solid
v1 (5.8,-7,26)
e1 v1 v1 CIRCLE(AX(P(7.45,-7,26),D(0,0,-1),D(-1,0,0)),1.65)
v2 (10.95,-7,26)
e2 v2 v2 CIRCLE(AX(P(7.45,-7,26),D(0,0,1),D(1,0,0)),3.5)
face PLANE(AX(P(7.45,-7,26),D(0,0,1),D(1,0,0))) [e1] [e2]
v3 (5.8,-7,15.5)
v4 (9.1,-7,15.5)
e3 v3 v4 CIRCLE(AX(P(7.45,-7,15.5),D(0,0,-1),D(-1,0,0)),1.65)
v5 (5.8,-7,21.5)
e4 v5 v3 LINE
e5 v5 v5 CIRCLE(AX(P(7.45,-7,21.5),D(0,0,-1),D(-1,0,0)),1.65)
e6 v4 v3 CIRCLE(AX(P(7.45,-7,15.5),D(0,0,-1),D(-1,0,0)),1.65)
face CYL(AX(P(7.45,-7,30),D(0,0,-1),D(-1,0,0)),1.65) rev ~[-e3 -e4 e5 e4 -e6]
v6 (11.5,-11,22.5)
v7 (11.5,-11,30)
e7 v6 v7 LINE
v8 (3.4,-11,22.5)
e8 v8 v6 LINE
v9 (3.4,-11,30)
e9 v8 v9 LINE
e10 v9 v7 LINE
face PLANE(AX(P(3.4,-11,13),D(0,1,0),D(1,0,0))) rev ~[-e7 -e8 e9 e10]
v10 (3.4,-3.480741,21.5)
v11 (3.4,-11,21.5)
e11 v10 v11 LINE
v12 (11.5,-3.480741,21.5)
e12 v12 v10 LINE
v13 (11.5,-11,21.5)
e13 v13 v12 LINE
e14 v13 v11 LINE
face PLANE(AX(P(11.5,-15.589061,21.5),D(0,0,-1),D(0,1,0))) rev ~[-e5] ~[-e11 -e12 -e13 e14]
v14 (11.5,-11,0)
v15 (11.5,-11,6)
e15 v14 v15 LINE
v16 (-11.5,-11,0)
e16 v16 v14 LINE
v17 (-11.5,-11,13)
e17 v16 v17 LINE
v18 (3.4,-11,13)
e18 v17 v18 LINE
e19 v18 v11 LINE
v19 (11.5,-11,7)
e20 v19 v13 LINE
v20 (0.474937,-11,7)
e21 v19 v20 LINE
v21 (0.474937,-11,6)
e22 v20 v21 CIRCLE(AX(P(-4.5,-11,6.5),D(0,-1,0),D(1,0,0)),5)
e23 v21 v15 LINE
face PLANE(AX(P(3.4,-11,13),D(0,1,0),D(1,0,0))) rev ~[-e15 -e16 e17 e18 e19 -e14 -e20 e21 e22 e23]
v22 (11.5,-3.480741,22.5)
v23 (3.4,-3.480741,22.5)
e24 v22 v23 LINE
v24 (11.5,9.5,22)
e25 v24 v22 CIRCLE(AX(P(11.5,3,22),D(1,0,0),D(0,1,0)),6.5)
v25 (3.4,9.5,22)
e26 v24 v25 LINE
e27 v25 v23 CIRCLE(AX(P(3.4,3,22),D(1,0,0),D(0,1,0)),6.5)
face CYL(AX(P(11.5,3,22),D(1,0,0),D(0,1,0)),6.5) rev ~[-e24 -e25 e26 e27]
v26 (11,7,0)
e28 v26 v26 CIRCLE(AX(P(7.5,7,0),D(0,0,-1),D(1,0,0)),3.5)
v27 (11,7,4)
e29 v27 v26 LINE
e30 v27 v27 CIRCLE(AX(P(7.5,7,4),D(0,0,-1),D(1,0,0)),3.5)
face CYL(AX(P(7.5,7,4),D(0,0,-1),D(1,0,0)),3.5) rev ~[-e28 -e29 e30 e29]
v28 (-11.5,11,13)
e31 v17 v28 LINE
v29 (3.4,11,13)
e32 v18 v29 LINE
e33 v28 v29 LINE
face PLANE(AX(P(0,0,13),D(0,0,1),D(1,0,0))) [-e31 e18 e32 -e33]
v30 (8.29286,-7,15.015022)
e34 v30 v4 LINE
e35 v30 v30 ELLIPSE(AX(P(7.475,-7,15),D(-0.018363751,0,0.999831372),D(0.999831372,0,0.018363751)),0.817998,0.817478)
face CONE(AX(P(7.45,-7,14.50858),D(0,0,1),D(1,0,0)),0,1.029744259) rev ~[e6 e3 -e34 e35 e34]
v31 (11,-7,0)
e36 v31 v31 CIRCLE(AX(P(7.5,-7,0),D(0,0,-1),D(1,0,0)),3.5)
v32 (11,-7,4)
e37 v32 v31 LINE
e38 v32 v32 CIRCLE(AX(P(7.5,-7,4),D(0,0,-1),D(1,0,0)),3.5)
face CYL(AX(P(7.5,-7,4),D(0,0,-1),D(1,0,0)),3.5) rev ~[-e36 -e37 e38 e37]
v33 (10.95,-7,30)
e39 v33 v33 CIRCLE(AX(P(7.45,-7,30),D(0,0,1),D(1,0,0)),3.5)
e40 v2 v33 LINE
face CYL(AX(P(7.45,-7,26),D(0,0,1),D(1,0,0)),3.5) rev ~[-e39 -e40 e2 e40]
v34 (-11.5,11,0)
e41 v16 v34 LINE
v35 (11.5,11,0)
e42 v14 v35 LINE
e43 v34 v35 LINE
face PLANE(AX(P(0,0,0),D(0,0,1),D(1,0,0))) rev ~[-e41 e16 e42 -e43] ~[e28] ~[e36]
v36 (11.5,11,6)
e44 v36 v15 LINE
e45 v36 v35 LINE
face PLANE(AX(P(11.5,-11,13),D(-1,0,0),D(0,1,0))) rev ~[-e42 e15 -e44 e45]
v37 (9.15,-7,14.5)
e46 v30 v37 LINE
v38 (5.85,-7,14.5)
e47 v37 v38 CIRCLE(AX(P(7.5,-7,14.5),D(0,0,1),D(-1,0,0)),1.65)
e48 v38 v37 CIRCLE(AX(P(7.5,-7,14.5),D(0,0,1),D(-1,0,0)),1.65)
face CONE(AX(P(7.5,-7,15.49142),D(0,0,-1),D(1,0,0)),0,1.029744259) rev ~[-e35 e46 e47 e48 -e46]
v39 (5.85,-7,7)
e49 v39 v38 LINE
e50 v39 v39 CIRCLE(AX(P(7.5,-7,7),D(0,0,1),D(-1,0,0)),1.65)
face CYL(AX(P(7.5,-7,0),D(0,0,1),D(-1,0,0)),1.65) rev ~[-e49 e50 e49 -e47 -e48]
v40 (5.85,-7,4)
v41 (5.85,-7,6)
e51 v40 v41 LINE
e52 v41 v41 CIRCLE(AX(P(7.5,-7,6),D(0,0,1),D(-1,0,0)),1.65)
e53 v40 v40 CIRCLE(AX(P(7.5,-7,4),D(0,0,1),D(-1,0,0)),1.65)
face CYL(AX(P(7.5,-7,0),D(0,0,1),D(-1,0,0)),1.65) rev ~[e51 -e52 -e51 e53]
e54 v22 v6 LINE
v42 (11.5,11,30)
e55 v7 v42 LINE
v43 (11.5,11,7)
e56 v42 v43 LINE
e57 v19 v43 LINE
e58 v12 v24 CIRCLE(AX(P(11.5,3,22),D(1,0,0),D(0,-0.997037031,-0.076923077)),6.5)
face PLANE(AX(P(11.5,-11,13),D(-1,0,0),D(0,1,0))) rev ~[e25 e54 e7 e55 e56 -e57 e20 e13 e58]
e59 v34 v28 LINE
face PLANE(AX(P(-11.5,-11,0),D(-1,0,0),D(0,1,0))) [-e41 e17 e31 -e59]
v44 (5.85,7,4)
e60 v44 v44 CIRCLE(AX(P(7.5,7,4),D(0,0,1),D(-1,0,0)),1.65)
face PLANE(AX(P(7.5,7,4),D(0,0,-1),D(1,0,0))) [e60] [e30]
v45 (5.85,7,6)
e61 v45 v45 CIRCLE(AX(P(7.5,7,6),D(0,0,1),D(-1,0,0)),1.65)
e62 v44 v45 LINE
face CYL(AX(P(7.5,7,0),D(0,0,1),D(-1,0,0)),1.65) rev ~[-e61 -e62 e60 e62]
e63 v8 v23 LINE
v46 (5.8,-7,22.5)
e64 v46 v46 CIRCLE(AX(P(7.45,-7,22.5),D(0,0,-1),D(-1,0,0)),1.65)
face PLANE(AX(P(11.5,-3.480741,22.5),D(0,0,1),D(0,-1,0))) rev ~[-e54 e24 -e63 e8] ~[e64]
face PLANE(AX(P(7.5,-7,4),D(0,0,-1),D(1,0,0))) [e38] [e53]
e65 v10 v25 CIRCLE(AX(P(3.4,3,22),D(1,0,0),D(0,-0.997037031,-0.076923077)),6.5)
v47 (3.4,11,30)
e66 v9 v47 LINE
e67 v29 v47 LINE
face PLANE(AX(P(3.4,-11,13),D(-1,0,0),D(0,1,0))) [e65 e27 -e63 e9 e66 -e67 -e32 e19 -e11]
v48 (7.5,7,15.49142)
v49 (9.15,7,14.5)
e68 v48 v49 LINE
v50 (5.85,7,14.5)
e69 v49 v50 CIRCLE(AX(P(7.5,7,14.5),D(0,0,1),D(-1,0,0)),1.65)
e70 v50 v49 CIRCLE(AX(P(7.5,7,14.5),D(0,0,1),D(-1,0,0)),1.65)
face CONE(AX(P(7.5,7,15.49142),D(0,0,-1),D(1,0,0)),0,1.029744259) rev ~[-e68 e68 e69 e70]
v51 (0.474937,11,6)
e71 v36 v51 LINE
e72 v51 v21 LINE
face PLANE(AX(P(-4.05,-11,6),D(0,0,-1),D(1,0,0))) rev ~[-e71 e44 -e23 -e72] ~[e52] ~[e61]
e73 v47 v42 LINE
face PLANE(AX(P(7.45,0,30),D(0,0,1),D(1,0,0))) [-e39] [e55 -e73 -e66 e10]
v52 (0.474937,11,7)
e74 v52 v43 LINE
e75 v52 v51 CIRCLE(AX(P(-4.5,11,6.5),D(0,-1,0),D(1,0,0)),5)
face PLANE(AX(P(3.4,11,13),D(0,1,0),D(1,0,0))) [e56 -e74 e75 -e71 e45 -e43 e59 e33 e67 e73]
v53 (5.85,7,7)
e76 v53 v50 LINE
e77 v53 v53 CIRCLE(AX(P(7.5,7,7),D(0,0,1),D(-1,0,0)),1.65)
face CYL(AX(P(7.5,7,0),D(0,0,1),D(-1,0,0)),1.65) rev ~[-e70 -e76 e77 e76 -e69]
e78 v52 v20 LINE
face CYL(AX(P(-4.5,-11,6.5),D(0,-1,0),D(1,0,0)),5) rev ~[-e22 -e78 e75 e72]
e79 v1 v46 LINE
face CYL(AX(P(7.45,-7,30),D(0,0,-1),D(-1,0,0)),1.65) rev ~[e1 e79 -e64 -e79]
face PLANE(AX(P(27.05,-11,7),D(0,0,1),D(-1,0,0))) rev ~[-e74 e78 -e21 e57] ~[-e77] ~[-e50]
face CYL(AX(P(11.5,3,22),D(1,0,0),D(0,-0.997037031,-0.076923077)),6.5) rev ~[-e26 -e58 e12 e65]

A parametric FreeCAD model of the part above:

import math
import FreeCAD as App
import Part
import Sketcher

V = App.Vector
Q = App.Units.Quantity

doc = App.newDocument("Part")
params = doc.addObject("Spreadsheet::Sheet", "Params")
for row, (alias, value) in enumerate([
    ("sketch1_width", "23 mm"),
    ("sketch1_height", "22 mm"),
    ("pad1_length", "13 mm"),
    ("sketch2_height", "22 mm"),
    ("sketch2_width", "8.1 mm"),
    ("pad2_length", "17 mm"),
    ("sketch3_diameter", "10 mm"),
    ("pocket1_length", "30 mm"),
    ("sketch4_radius", "6.5 mm"),
    ("sketch4_height", "1 mm"),
    ("pocket2_length", "25 mm"),
    ("sketch5_height", "1 mm"),
    ("sketch5_width", "31.1 mm"),
    ("pocket3_length", "45 mm"),
    ("sketch6_radius", "6.5 mm"),
    ("sketch6_height", "1 mm"),
    ("pocket4_length", "40 mm"),
    ("sketch7_diameter", "3.3 mm"),
    ("hole_diameter", "3.3 mm"),
    ("hole_depth", "14.5 mm"),
    ("hole_cbore_diameter", "7 mm"),
    ("hole_cbore_depth", "4 mm"),
    ("pocket5_length", "3.05 mm"),
    ("sketch9_diameter", "3.3 mm"),
    ("hole2_diameter", "3.3 mm"),
    ("hole2_depth", "14.5 mm"),
    ("hole2_cbore_diameter", "7 mm"),
    ("hole2_cbore_depth", "4 mm"),
    ("pocket6_length", "3.05 mm"),
], start=1):
    params.set(f"A{row}", alias)
    params.set(f"B{row}", "=" + value)
    params.setAlias(f"B{row}", alias)

body = doc.addObject("PartDesign::Body", "Body")

# Sketch on XY plane
sketch1 = body.newObject("Sketcher::SketchObject", "Sketch")
sketch1.AttachmentSupport = (doc.getObject("XY_Plane"), [""])
sketch1.MapMode = "FlatFace"
sketch1.addGeometry(Part.LineSegment(V(-11.5, 11, 0), V(-11.5, -11, 0)), False)
sketch1.addGeometry(Part.LineSegment(V(-11.5, -11, 0), V(11.5, -11, 0)), False)
sketch1.addGeometry(Part.LineSegment(V(11.5, -11, 0), V(11.5, 11, 0)), False)
sketch1.addGeometry(Part.LineSegment(V(11.5, 11, 0), V(-11.5, 11, 0)), False)
sketch1.addConstraint(Sketcher.Constraint("Coincident", 0, 2, 1, 1))
sketch1.addConstraint(Sketcher.Constraint("Coincident", 1, 2, 2, 1))
sketch1.addConstraint(Sketcher.Constraint("Coincident", 2, 2, 3, 1))
sketch1.addConstraint(Sketcher.Constraint("Coincident", 3, 2, 0, 1))
sketch1.addConstraint(Sketcher.Constraint("Vertical", 0))
sketch1.addConstraint(Sketcher.Constraint("Horizontal", 1))
sketch1.addConstraint(Sketcher.Constraint("Vertical", 2))
sketch1.addConstraint(Sketcher.Constraint("Horizontal", 3))
sketch1.addConstraint(Sketcher.Constraint("Symmetric", 0, 2, 2, 2, -1, 1))
sketch1.addConstraint(Sketcher.Constraint("DistanceX", 1, 1, 1, 2, Q("23 mm")))
sketch1.addConstraint(Sketcher.Constraint("DistanceY", 0, 2, 0, 1, Q("22 mm")))
sketch1.setExpression("Constraints[9]", "Params.sketch1_width")
sketch1.setExpression("Constraints[10]", "Params.sketch1_height")
pad1 = body.newObject("PartDesign::Pad", "Pad")
pad1.Profile = sketch1
pad1.setExpression("Length", "Params.pad1_length")

# Sketch on XY plane
sketch2 = body.newObject("Sketcher::SketchObject", "Sketch001")
sketch2.AttachmentSupport = (doc.getObject("XY_Plane"), [""])
sketch2.MapMode = "FlatFace"
sketch2.AttachmentOffset = App.Placement(V(0, 0, 13), App.Rotation())
sketch2.addGeometry(Part.LineSegment(V(3.4, 11, 0), V(3.4, -11, 0)), False)
sketch2.addGeometry(Part.LineSegment(V(3.4, -11, 0), V(11.5, -11, 0)), False)
sketch2.addGeometry(Part.LineSegment(V(11.5, -11, 0), V(11.5, 11, 0)), False)
sketch2.addGeometry(Part.LineSegment(V(11.5, 11, 0), V(3.4, 11, 0)), False)
sketch2.addConstraint(Sketcher.Constraint("Coincident", 0, 2, 1, 1))
sketch2.addConstraint(Sketcher.Constraint("Coincident", 1, 2, 2, 1))
sketch2.addConstraint(Sketcher.Constraint("Coincident", 2, 2, 3, 1))
sketch2.addConstraint(Sketcher.Constraint("Coincident", 3, 2, 0, 1))
sketch2.addConstraint(Sketcher.Constraint("Vertical", 0))
sketch2.addConstraint(Sketcher.Constraint("Horizontal", 1))
sketch2.addConstraint(Sketcher.Constraint("Vertical", 2))
sketch2.addConstraint(Sketcher.Constraint("Horizontal", 3))
sketch2.addConstraint(Sketcher.Constraint("DistanceY", 0, 2, 0, 1, Q("22 mm")))
sketch2.addConstraint(Sketcher.Constraint("DistanceX", 1, 1, 1, 2, Q("8.1 mm")))
sketch2.addConstraint(Sketcher.Constraint("DistanceY", 0, 2, -1, 1, Q("11 mm")))
sketch2.addConstraint(Sketcher.Constraint("DistanceX", -1, 1, 0, 2, Q("3.4 mm")))
sketch2.setExpression("Constraints[8]", "Params.sketch2_height")
sketch2.setExpression("Constraints[9]", "Params.sketch2_width")
pad2 = body.newObject("PartDesign::Pad", "Pad001")
pad2.Profile = sketch2
pad2.setExpression("Length", "Params.pad2_length")

# Sketch on XZ plane
sketch3 = body.newObject("Sketcher::SketchObject", "Sketch002")
sketch3.AttachmentSupport = (doc.getObject("XZ_Plane"), [""])
sketch3.MapMode = "FlatFace"
sketch3.AttachmentOffset = App.Placement(V(0, 0, 11), App.Rotation())
sketch3.addGeometry(Part.Circle(V(-4.5, 6.5, 0), V(0, 0, 1), 5), False)
sketch3.addConstraint(Sketcher.Constraint("Diameter", 0, Q("10 mm")))
sketch3.addConstraint(Sketcher.Constraint("DistanceX", 0, 3, -1, 1, Q("4.5 mm")))
sketch3.addConstraint(Sketcher.Constraint("DistanceY", -1, 1, 0, 3, Q("6.5 mm")))
sketch3.setExpression("Constraints[0]", "Params.sketch3_diameter")
pocket1 = body.newObject("PartDesign::Pocket", "Pocket")
pocket1.Profile = sketch3
pocket1.setExpression("Length", "Params.pocket1_length")

# Sketch on YZ plane
sketch4 = body.newObject("Sketcher::SketchObject", "Sketch003")
sketch4.AttachmentSupport = (doc.getObject("YZ_Plane"), [""])
sketch4.MapMode = "FlatFace"
sketch4.AttachmentOffset = App.Placement(V(0, 0, 11.5), App.Rotation())
sketch4.addGeometry(Part.ArcOfCircle(Part.Circle(V(3, 22, 0), V(0, 0, 1), 6.5), math.radians(-175.588274), math.radians(0)), False)
sketch4.addGeometry(Part.ArcOfCircle(Part.Circle(V(3, 22, 0), V(0, 0, 1), 6.5), math.radians(0), math.radians(175.588274)), False)
sketch4.addGeometry(Part.LineSegment(V(-3.480741, 22.5, 0), V(-15.589061, 22.5, 0)), False)
sketch4.addGeometry(Part.LineSegment(V(-15.589061, 22.5, 0), V(-15.589061, 21.5, 0)), False)
sketch4.addGeometry(Part.LineSegment(V(-15.589061, 21.5, 0), V(-3.480741, 21.5, 0)), False)
sketch4.addConstraint(Sketcher.Constraint("Tangent", 0, 2, 1, 1))
sketch4.addConstraint(Sketcher.Constraint("Coincident", 1, 2, 2, 1))
sketch4.addConstraint(Sketcher.Constraint("Coincident", 2, 2, 3, 1))
sketch4.addConstraint(Sketcher.Constraint("Coincident", 3, 2, 4, 1))
sketch4.addConstraint(Sketcher.Constraint("Coincident", 4, 2, 0, 1))
sketch4.addConstraint(Sketcher.Constraint("Horizontal", 2))
sketch4.addConstraint(Sketcher.Constraint("Vertical", 3))
sketch4.addConstraint(Sketcher.Constraint("Horizontal", 4))
sketch4.addConstraint(Sketcher.Constraint("Equal", 0, 1))
sketch4.addConstraint(Sketcher.Constraint("Horizontal", 1, 3, 0, 2))
sketch4.addConstraint(Sketcher.Constraint("Vertical", 1, 2, 4, 2))
sketch4.addConstraint(Sketcher.Constraint("Radius", 0, Q("6.5 mm")))
sketch4.addConstraint(Sketcher.Constraint("DistanceY", 3, 2, 3, 1, Q("1 mm")))
sketch4.addConstraint(Sketcher.Constraint("DistanceX", -1, 1, 0, 3, Q("3 mm")))
sketch4.addConstraint(Sketcher.Constraint("DistanceY", -1, 1, 0, 3, Q("22 mm")))
sketch4.addConstraint(Sketcher.Constraint("DistanceX", 2, 2, 2, 1, Q("12.10832 mm")))
sketch4.setExpression("Constraints[11]", "Params.sketch4_radius")
sketch4.setExpression("Constraints[12]", "Params.sketch4_height")
pocket2 = body.newObject("PartDesign::Pocket", "Pocket001")
pocket2.Profile = sketch4
pocket2.setExpression("Length", "Params.pocket2_length")

# Sketch on XZ plane
sketch5 = body.newObject("Sketcher::SketchObject", "Sketch004")
sketch5.AttachmentSupport = (doc.getObject("XZ_Plane"), [""])
sketch5.MapMode = "FlatFace"
sketch5.AttachmentOffset = App.Placement(V(0, 0, 11), App.Rotation())
sketch5.addGeometry(Part.LineSegment(V(27.05, 7, 0), V(-4.05, 7, 0)), False)
sketch5.addGeometry(Part.LineSegment(V(-4.05, 7, 0), V(-4.05, 6, 0)), False)
sketch5.addGeometry(Part.LineSegment(V(-4.05, 6, 0), V(27.05, 6, 0)), False)
sketch5.addGeometry(Part.LineSegment(V(27.05, 6, 0), V(27.05, 7, 0)), False)
sketch5.addConstraint(Sketcher.Constraint("Coincident", 0, 2, 1, 1))
sketch5.addConstraint(Sketcher.Constraint("Coincident", 1, 2, 2, 1))
sketch5.addConstraint(Sketcher.Constraint("Coincident", 2, 2, 3, 1))
sketch5.addConstraint(Sketcher.Constraint("Coincident", 3, 2, 0, 1))
sketch5.addConstraint(Sketcher.Constraint("Horizontal", 0))
sketch5.addConstraint(Sketcher.Constraint("Vertical", 1))
sketch5.addConstraint(Sketcher.Constraint("Horizontal", 2))
sketch5.addConstraint(Sketcher.Constraint("Vertical", 3))
sketch5.addConstraint(Sketcher.Constraint("DistanceY", 1, 2, 1, 1, Q("1 mm")))
sketch5.addConstraint(Sketcher.Constraint("DistanceX", 0, 2, 0, 1, Q("31.1 mm")))
sketch5.addConstraint(Sketcher.Constraint("DistanceY", -1, 1, 0, 2, Q("7 mm")))
sketch5.addConstraint(Sketcher.Constraint("DistanceX", 0, 2, -1, 1, Q("4.05 mm")))
sketch5.setExpression("Constraints[8]", "Params.sketch5_height")
sketch5.setExpression("Constraints[9]", "Params.sketch5_width")
pocket3 = body.newObject("PartDesign::Pocket", "Pocket002")
pocket3.Profile = sketch5
pocket3.setExpression("Length", "Params.pocket3_length")

# Sketch on YZ plane
sketch6 = body.newObject("Sketcher::SketchObject", "Sketch005")
sketch6.AttachmentSupport = (doc.getObject("YZ_Plane"), [""])
sketch6.MapMode = "FlatFace"
sketch6.AttachmentOffset = App.Placement(V(0, 0, 11.5), App.Rotation())
sketch6.addGeometry(Part.ArcOfCircle(Part.Circle(V(3, 22, 0), V(0, 0, 1), 6.5), math.radians(-175.588274), math.radians(0)), False)
sketch6.addGeometry(Part.ArcOfCircle(Part.Circle(V(3, 22, 0), V(0, 0, 1), 6.5), math.radians(0), math.radians(175.588274)), False)
sketch6.addGeometry(Part.LineSegment(V(-3.480741, 22.5, 0), V(-15.589061, 22.5, 0)), False)
sketch6.addGeometry(Part.LineSegment(V(-15.589061, 22.5, 0), V(-15.589061, 21.5, 0)), False)
sketch6.addGeometry(Part.LineSegment(V(-15.589061, 21.5, 0), V(-3.480741, 21.5, 0)), False)
sketch6.addConstraint(Sketcher.Constraint("Tangent", 0, 2, 1, 1))
sketch6.addConstraint(Sketcher.Constraint("Coincident", 1, 2, 2, 1))
sketch6.addConstraint(Sketcher.Constraint("Coincident", 2, 2, 3, 1))
sketch6.addConstraint(Sketcher.Constraint("Coincident", 3, 2, 4, 1))
sketch6.addConstraint(Sketcher.Constraint("Coincident", 4, 2, 0, 1))
sketch6.addConstraint(Sketcher.Constraint("Horizontal", 2))
sketch6.addConstraint(Sketcher.Constraint("Vertical", 3))
sketch6.addConstraint(Sketcher.Constraint("Horizontal", 4))
sketch6.addConstraint(Sketcher.Constraint("Equal", 0, 1))
sketch6.addConstraint(Sketcher.Constraint("Horizontal", 1, 3, 0, 2))
sketch6.addConstraint(Sketcher.Constraint("Vertical", 1, 2, 4, 2))
sketch6.addConstraint(Sketcher.Constraint("Radius", 0, Q("6.5 mm")))
sketch6.addConstraint(Sketcher.Constraint("DistanceY", 3, 2, 3, 1, Q("1 mm")))
sketch6.addConstraint(Sketcher.Constraint("DistanceX", -1, 1, 0, 3, Q("3 mm")))
sketch6.addConstraint(Sketcher.Constraint("DistanceY", -1, 1, 0, 3, Q("22 mm")))
sketch6.addConstraint(Sketcher.Constraint("DistanceX", 2, 2, 2, 1, Q("12.10832 mm")))
sketch6.setExpression("Constraints[11]", "Params.sketch6_radius")
sketch6.setExpression("Constraints[12]", "Params.sketch6_height")
pocket4 = body.newObject("PartDesign::Pocket", "Pocket003")
pocket4.Profile = sketch6
pocket4.setExpression("Length", "Params.pocket4_length")

# Sketch on XY plane
sketch7 = body.newObject("Sketcher::SketchObject", "Sketch006")
sketch7.AttachmentSupport = (doc.getObject("XY_Plane"), [""])
sketch7.MapMode = "FlatFace"
sketch7.AttachmentOffset = App.Placement(V(0, 0, 30), App.Rotation())
sketch7.addGeometry(Part.Circle(V(7.45, -7, 0), V(0, 0, 1), 1.65), False)
sketch7.addConstraint(Sketcher.Constraint("Diameter", 0, Q("3.3 mm")))
sketch7.addConstraint(Sketcher.Constraint("DistanceY", 0, 3, -1, 1, Q("7 mm")))
sketch7.addConstraint(Sketcher.Constraint("DistanceX", -1, 1, 0, 3, Q("7.45 mm")))
sketch7.setExpression("Constraints[0]", "Params.sketch7_diameter")
doc.recompute()
hole = body.newObject("PartDesign::Hole", "Hole")
hole.Profile = sketch7
hole.ThreadType = "None"
hole.setExpression("Diameter", "Params.hole_diameter")
hole.DepthType = "Dimension"
hole.setExpression("Depth", "Params.hole_depth")
hole.DrillPoint = "Angled"
hole.DrillPointAngle = 118
hole.HoleCutType = "Counterbore"
hole.setExpression("HoleCutDiameter", "Params.hole_cbore_diameter")
hole.setExpression("HoleCutDepth", "Params.hole_cbore_depth")

# Sketch on XY plane
sketch8 = body.newObject("Sketcher::SketchObject", "Sketch007")
sketch8.AttachmentSupport = (doc.getObject("XY_Plane"), [""])
sketch8.MapMode = "FlatFace"
sketch8.AttachmentOffset = App.Placement(V(0, 0, 30), App.Rotation())
sketch8.addGeometry(Part.ArcOfCircle(Part.Circle(V(7.45, -7, 0), V(0, 0, 1), 3.445), math.radians(-90), math.radians(0)), False)
sketch8.addGeometry(Part.ArcOfCircle(Part.Circle(V(7.45, -7, 0), V(0, 0, 1), 3.445), math.radians(0), math.radians(270)), False)
sketch8.addConstraint(Sketcher.Constraint("Tangent", 0, 1, 1, 2))
sketch8.addConstraint(Sketcher.Constraint("Coincident", 1, 1, 0, 2))
sketch8.addConstraint(Sketcher.Constraint("Horizontal", 0, 3, 1, 1))
sketch8.addConstraint(Sketcher.Constraint("Vertical", 1, 3, 0, 1))
sketch8.addConstraint(Sketcher.Constraint("DistanceY", 0, 3, -1, 1, Q("7 mm")))
sketch8.addConstraint(Sketcher.Constraint("Radius", 0, Q("3.445 mm")))
sketch8.addConstraint(Sketcher.Constraint("DistanceX", -1, 1, 0, 3, Q("7.45 mm")))
pocket5 = body.newObject("PartDesign::Pocket", "Pocket004")
pocket5.Profile = sketch8
pocket5.setExpression("Length", "Params.pocket5_length")

# Sketch on XY plane
sketch9 = body.newObject("Sketcher::SketchObject", "Sketch008")
sketch9.AttachmentSupport = (doc.getObject("XY_Plane"), [""])
sketch9.MapMode = "FlatFace"
sketch9.addGeometry(Part.Circle(V(7.5, -7, 0), V(0, 0, 1), 1.65), False)
sketch9.addGeometry(Part.Circle(V(7.5, 7, 0), V(0, 0, 1), 1.65), False)
sketch9.addConstraint(Sketcher.Constraint("Equal", 0, 1))
sketch9.addConstraint(Sketcher.Constraint("Symmetric", 0, 3, 1, 3, -1))
sketch9.addConstraint(Sketcher.Constraint("Diameter", 0, Q("3.3 mm")))
sketch9.addConstraint(Sketcher.Constraint("DistanceY", 0, 3, -1, 1, Q("7 mm")))
sketch9.addConstraint(Sketcher.Constraint("DistanceX", -1, 1, 0, 3, Q("7.5 mm")))
sketch9.setExpression("Constraints[2]", "Params.sketch9_diameter")
doc.recompute()
hole2 = body.newObject("PartDesign::Hole", "Hole001")
hole2.Profile = sketch9
hole2.ThreadType = "None"
hole2.setExpression("Diameter", "Params.hole2_diameter")
hole2.DepthType = "Dimension"
hole2.setExpression("Depth", "Params.hole2_depth")
hole2.DrillPoint = "Angled"
hole2.DrillPointAngle = 118
hole2.HoleCutType = "Counterbore"
hole2.setExpression("HoleCutDiameter", "Params.hole2_cbore_diameter")
hole2.setExpression("HoleCutDepth", "Params.hole2_cbore_depth")
hole2.Reversed = True

# Sketch on XY plane
sketch10 = body.newObject("Sketcher::SketchObject", "Sketch009")
sketch10.AttachmentSupport = (doc.getObject("XY_Plane"), [""])
sketch10.MapMode = "FlatFace"
sketch10.addGeometry(Part.ArcOfCircle(Part.Circle(V(7.5, -7, 0), V(0, 0, 1), 3.445), math.radians(0), math.radians(270)), False)
sketch10.addGeometry(Part.ArcOfCircle(Part.Circle(V(7.5, -7, 0), V(0, 0, 1), 3.445), math.radians(-90), math.radians(0)), False)
sketch10.addGeometry(Part.ArcOfCircle(Part.Circle(V(7.5, 7, 0), V(0, 0, 1), 3.445), math.radians(90), math.radians(360)), False)
sketch10.addGeometry(Part.ArcOfCircle(Part.Circle(V(7.5, 7, 0), V(0, 0, 1), 3.445), math.radians(0), math.radians(90)), False)
sketch10.addConstraint(Sketcher.Constraint("Tangent", 0, 1, 1, 2))
sketch10.addConstraint(Sketcher.Constraint("Coincident", 1, 1, 0, 2))
sketch10.addConstraint(Sketcher.Constraint("Tangent", 2, 1, 3, 2))
sketch10.addConstraint(Sketcher.Constraint("Coincident", 3, 1, 2, 2))
sketch10.addConstraint(Sketcher.Constraint("Equal", 1, 2))
sketch10.addConstraint(Sketcher.Constraint("Symmetric", 0, 3, 2, 3, -1))
sketch10.addConstraint(Sketcher.Constraint("Horizontal", 1, 3, 0, 1))
sketch10.addConstraint(Sketcher.Constraint("Horizontal", 2, 3, 3, 1))
sketch10.addConstraint(Sketcher.Constraint("Vertical", 3, 3, 1, 1))
sketch10.addConstraint(Sketcher.Constraint("Vertical", 1, 1, 2, 1))
sketch10.addConstraint(Sketcher.Constraint("DistanceY", 0, 3, -1, 1, Q("7 mm")))
sketch10.addConstraint(Sketcher.Constraint("Radius", 0, Q("3.445 mm")))
sketch10.addConstraint(Sketcher.Constraint("DistanceX", -1, 1, 0, 3, Q("7.5 mm")))
pocket6 = body.newObject("PartDesign::Pocket", "Pocket005")
pocket6.Profile = sketch10
pocket6.setExpression("Length", "Params.pocket6_length")
pocket6.Reversed = True

doc.recompute()
